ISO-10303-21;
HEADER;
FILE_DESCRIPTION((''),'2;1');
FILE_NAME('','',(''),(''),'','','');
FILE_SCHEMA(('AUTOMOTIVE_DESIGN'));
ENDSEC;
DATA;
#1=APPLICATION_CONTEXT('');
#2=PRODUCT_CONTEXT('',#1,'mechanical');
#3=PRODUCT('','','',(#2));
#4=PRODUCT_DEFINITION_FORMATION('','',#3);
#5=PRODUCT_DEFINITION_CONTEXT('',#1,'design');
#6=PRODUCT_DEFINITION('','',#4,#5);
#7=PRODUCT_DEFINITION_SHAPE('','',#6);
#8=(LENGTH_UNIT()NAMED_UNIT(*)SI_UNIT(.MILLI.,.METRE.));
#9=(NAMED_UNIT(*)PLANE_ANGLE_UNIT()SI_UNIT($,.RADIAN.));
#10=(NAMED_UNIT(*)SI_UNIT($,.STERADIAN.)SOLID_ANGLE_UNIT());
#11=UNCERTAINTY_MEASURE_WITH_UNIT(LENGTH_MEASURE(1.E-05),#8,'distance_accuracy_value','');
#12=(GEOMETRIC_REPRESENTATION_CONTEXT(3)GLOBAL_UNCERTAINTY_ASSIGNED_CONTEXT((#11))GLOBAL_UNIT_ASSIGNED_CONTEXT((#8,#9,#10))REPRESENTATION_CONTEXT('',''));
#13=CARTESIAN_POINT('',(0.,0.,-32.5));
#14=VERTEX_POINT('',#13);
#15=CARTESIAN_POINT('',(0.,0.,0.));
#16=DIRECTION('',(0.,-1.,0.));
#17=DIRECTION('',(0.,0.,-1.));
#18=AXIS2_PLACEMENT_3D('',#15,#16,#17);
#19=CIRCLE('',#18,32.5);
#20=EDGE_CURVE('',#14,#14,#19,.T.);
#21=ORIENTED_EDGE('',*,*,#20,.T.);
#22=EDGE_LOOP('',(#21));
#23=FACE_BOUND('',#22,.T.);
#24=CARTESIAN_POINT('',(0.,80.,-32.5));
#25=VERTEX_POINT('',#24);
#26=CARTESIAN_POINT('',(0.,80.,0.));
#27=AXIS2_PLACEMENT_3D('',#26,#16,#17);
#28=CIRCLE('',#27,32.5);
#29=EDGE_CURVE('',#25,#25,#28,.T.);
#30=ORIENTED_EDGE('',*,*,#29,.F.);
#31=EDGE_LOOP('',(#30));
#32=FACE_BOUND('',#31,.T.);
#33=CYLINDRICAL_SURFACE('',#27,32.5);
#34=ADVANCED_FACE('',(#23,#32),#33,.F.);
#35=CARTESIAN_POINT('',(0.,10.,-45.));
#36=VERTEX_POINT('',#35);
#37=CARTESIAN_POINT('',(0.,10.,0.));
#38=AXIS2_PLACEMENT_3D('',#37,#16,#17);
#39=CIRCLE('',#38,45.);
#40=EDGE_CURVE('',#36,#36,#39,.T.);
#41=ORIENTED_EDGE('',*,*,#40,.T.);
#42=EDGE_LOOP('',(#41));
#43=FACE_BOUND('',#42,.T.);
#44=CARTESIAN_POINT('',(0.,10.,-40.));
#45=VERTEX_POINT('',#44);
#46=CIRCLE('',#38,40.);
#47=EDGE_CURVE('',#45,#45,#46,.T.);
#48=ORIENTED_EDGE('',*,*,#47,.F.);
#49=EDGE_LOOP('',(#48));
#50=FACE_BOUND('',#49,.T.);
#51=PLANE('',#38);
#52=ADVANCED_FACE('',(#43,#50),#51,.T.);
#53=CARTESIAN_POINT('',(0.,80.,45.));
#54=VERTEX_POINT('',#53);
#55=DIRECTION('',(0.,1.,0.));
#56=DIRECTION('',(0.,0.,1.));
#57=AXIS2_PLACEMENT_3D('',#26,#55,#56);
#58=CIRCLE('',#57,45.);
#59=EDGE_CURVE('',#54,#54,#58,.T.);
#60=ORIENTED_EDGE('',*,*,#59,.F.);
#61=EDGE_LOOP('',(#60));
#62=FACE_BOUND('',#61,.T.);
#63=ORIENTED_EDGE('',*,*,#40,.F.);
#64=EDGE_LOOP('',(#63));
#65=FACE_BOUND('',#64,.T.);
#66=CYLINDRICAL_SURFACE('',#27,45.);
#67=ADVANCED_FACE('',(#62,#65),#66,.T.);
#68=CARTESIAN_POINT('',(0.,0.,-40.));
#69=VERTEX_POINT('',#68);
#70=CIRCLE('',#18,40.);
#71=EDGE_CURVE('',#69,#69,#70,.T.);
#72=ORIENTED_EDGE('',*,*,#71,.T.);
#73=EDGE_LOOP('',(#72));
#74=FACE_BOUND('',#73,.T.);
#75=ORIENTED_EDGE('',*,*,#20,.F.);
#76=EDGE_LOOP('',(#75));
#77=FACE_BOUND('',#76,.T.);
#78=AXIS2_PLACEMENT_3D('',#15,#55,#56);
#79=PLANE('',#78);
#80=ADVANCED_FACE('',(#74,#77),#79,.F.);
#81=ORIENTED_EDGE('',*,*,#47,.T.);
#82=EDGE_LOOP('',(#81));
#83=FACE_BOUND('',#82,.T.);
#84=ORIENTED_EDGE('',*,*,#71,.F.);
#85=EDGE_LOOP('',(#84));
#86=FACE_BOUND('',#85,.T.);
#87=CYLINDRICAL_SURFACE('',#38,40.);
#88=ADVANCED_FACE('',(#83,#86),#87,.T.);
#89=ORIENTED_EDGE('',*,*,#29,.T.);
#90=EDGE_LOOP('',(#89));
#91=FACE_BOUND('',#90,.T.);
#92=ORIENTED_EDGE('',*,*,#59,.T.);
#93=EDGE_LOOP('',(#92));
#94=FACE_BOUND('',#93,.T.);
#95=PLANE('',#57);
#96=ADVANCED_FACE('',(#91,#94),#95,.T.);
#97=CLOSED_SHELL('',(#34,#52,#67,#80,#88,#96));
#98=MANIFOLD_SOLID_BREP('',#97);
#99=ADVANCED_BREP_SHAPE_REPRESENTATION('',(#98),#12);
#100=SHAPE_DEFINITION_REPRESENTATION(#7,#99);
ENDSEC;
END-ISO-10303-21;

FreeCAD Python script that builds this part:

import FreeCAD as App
import Part
import Sketcher

V = App.Vector
Q = App.Units.Quantity

doc = App.newDocument("Part")
params = doc.addObject("Spreadsheet::Sheet", "Params")
for row, (alias, value) in enumerate([
    ("sketch1_diameter", "90 mm"),
    ("pad1_length", "80 mm"),
    ("sketch2_diameter", "90 mm"),
    ("sketch2_diameter2", "80 mm"),
    ("pocket1_length", "10 mm"),
    ("sketch3_diameter", "65 mm"),
], start=1):
    params.set(f"A{row}", alias)
    params.set(f"B{row}", "=" + value)
    params.setAlias(f"B{row}", alias)

body = doc.addObject("PartDesign::Body", "Body")

# Sketch on XZ plane
sketch1 = body.newObject("Sketcher::SketchObject", "Sketch")
sketch1.AttachmentSupport = (doc.getObject("XZ_Plane"), [""])
sketch1.MapMode = "FlatFace"
sketch1.addGeometry(Part.Circle(V(0, 0, 0), V(0, 0, 1), 45), False)
sketch1.addConstraint([
    Sketcher.Constraint("Coincident", 0, 3, -1, 1),
    Sketcher.Constraint("Diameter", 0, Q("90 mm")),
])
sketch1.setExpression("Constraints[1]", "Params.sketch1_diameter")
pad1 = body.newObject("PartDesign::Pad", "Pad")
pad1.Profile = sketch1
pad1.setExpression("Length", "Params.pad1_length")
pad1.Reversed = True

# Sketch on XZ plane
sketch2 = body.newObject("Sketcher::SketchObject", "Sketch001")
sketch2.AttachmentSupport = (doc.getObject("XZ_Plane"), [""])
sketch2.MapMode = "FlatFace"
sketch2.addGeometry([
    Part.Circle(V(0, 0, 0), V(0, 0, 1), 45),
    Part.Circle(V(0, 0, 0), V(0, 0, 1), 40),
], False)
sketch2.addConstraint([
    Sketcher.Constraint("Coincident", 0, 3, -1, 1),
    Sketcher.Constraint("Coincident", 1, 3, -1, 1),
    Sketcher.Constraint("Diameter", 0, Q("90 mm")),
    Sketcher.Constraint("Diameter", 1, Q("80 mm")),
])
sketch2.setExpression("Constraints[2]", "Params.sketch2_diameter")
sketch2.setExpression("Constraints[3]", "Params.sketch2_diameter2")
pocket1 = body.newObject("PartDesign::Pocket", "Pocket")
pocket1.Profile = sketch2
pocket1.setExpression("Length", "Params.pocket1_length")

# Sketch on XZ plane
sketch3 = body.newObject("Sketcher::SketchObject", "Sketch002")
sketch3.AttachmentSupport = (doc.getObject("XZ_Plane"), [""])
sketch3.MapMode = "FlatFace"
sketch3.addGeometry(Part.Circle(V(0, 0, 0), V(0, 0, 1), 32), False)
sketch3.addConstraint([
    Sketcher.Constraint("Coincident", 0, 3, -1, 1),
    Sketcher.Constraint("Diameter", 0, Q("65 mm")),
])
sketch3.setExpression("Constraints[1]", "Params.sketch3_diameter")
pocket2 = body.newObject("PartDesign::Pocket", "Pocket001")
pocket2.Profile = sketch3
pocket2.Type = "ThroughAll"

doc.recompute()
